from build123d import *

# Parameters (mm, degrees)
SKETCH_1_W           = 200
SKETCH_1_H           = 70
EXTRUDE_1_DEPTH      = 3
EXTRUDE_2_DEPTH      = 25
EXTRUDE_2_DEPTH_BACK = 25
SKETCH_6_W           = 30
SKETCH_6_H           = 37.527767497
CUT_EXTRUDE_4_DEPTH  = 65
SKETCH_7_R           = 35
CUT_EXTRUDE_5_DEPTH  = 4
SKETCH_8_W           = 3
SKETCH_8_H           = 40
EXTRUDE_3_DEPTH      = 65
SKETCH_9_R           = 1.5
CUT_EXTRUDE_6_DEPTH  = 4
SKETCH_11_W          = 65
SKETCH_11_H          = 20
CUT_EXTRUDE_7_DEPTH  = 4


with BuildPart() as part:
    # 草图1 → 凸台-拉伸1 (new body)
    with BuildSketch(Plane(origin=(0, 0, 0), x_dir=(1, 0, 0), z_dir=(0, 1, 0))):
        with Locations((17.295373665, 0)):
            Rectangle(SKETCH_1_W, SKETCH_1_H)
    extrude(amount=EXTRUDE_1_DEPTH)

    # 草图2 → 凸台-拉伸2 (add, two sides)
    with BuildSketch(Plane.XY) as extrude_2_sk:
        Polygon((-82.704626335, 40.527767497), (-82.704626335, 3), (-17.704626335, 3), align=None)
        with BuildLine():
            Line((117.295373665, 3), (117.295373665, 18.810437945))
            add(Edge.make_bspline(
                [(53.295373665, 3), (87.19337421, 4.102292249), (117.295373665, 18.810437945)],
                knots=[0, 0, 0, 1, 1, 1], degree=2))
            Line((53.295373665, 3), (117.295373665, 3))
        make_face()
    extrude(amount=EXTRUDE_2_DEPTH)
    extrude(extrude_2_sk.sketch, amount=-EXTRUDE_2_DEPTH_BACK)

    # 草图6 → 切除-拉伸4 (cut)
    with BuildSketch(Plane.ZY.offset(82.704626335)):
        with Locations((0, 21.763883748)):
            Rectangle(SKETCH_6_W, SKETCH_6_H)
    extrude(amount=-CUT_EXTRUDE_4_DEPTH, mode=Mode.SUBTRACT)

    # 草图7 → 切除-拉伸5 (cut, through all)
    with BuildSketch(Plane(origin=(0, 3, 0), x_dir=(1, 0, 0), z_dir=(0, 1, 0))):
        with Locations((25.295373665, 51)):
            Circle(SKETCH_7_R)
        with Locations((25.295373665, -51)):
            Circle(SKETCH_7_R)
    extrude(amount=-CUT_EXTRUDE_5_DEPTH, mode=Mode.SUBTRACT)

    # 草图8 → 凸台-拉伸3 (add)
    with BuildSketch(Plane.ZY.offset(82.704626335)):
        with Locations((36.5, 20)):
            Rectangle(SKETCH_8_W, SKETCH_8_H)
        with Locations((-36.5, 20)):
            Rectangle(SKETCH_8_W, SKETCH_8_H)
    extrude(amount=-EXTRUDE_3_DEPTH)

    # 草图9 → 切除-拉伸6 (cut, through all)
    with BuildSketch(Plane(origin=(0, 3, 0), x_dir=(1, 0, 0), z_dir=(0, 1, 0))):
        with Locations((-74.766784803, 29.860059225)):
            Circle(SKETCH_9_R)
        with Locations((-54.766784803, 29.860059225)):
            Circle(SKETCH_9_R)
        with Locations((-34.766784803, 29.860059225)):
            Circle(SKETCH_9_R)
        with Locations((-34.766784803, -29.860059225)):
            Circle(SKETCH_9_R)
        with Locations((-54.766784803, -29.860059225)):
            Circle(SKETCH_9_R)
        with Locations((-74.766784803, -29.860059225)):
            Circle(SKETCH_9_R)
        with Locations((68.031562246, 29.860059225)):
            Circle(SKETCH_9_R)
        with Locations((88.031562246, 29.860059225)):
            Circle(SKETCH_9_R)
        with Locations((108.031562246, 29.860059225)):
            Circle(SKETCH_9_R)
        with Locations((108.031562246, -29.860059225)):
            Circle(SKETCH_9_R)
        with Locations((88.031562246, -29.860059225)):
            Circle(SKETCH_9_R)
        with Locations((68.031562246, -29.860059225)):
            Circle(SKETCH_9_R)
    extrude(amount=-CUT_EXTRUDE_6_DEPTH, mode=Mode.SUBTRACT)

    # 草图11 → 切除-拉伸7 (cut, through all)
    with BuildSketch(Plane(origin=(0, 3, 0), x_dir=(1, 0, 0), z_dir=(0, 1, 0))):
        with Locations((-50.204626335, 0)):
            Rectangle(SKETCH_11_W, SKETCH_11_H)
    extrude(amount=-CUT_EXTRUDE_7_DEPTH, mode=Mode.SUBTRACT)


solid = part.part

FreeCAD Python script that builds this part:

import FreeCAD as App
import Part
import Sketcher
Q = App.Units.Quantity

doc = App.newDocument("Part")
body = doc.addObject("PartDesign::Body", "Body")

sketch1 = body.newObject("Sketcher::SketchObject", "Sketch")
sketch1.AttachmentSupport = (doc.getObject("XZ_Plane"), [""])
sketch1.MapMode = "FlatFace"
sketch1.addGeometry(Part.LineSegment(App.Vector(-83, -35, 0), App.Vector(-83, 35, 0)), False)
sketch1.addGeometry(Part.LineSegment(App.Vector(-83, 35, 0), App.Vector(117, 35, 0)), False)
sketch1.addGeometry(Part.LineSegment(App.Vector(117, 35, 0), App.Vector(117, -35, 0)), False)
sketch1.addGeometry(Part.LineSegment(App.Vector(117, -35, 0), App.Vector(-83, -35, 0)), False)
sketch1.addConstraint(Sketcher.Constraint("Coincident", 0, 2, 1, 1))
sketch1.addConstraint(Sketcher.Constraint("Coincident", 1, 2, 2, 1))
sketch1.addConstraint(Sketcher.Constraint("Coincident", 2, 2, 3, 1))
sketch1.addConstraint(Sketcher.Constraint("Coincident", 3, 2, 0, 1))
sketch1.addConstraint(Sketcher.Constraint("Vertical", 0))
sketch1.addConstraint(Sketcher.Constraint("Horizontal", 1))
sketch1.addConstraint(Sketcher.Constraint("Vertical", 2))
sketch1.addConstraint(Sketcher.Constraint("Horizontal", 3))
sketch1.addConstraint(Sketcher.Constraint("DistanceX", 1, 1, 1, 2, 200.0))
sketch1.addConstraint(Sketcher.Constraint("DistanceY", 0, 1, 0, 2, 70.0))
sketch1.addConstraint(Sketcher.Constraint("DistanceY", -1, 1, 0, 2, 35.0))
sketch1.addConstraint(Sketcher.Constraint("DistanceX", 0, 2, -1, 1, 82.704626))
pad1 = body.newObject("PartDesign::Pad", "Pad")
pad1.Profile = sketch1
pad1.Length = 3
pad1.Reversed = True

sketch2 = body.newObject("Sketcher::SketchObject", "Sketch001")
sketch2.AttachmentSupport = (doc.getObject("XY_Plane"), [""])
sketch2.MapMode = "FlatFace"
sketch2.addGeometry(Part.LineSegment(App.Vector(-82.704626, 40.527767, 0), App.Vector(-82.704626, 3, 0)), False)
sketch2.addGeometry(Part.LineSegment(App.Vector(-82.704626, 3, 0), App.Vector(-17.704626, 3, 0)), False)
sketch2.addGeometry(Part.LineSegment(App.Vector(-17.704626, 3, 0), App.Vector(-82.704626, 40.527767, 0)), False)
sketch2.addGeometry(Part.LineSegment(App.Vector(117.295374, 3, 0), App.Vector(117.295374, 18.810438, 0)), False)
sketch2.addGeometry(Part.BSplineCurve([App.Vector(53.295374, 3, 0), App.Vector(87.193374, 4.102292, 0), App.Vector(117.295374, 18.810438, 0)], [3, 3], [0, 1], False, 2, [1, 1, 1], False), False)
sketch2.addGeometry(Part.LineSegment(App.Vector(53.295374, 3, 0), App.Vector(117.295374, 3, 0)), False)
sketch2.addConstraint(Sketcher.Constraint("Block", 4))
sketch2.addConstraint(Sketcher.Constraint("Coincident", 0, 2, 1, 1))
sketch2.addConstraint(Sketcher.Constraint("Coincident", 1, 2, 2, 1))
sketch2.addConstraint(Sketcher.Constraint("Coincident", 2, 2, 0, 1))
sketch2.addConstraint(Sketcher.Constraint("Coincident", 3, 2, 4, 2))
sketch2.addConstraint(Sketcher.Constraint("Coincident", 4, 1, 5, 1))
sketch2.addConstraint(Sketcher.Constraint("Coincident", 5, 2, 3, 1))
sketch2.addConstraint(Sketcher.Constraint("Vertical", 0))
sketch2.addConstraint(Sketcher.Constraint("Horizontal", 1))
sketch2.addConstraint(Sketcher.Constraint("Vertical", 3))
sketch2.addConstraint(Sketcher.Constraint("Horizontal", 5))
sketch2.addConstraint(Sketcher.Constraint("Horizontal", 1, 2, 5, 2))
sketch2.addConstraint(Sketcher.Constraint("DistanceX", 1, 1, 1, 2, 65.0))
sketch2.addConstraint(Sketcher.Constraint("Angle", 2, Q("150 deg")))
sketch2.addConstraint(Sketcher.Constraint("DistanceX", 1, 2, 3, 2, 135.0))
pad2 = body.newObject("PartDesign::Pad", "Pad001")
pad2.Profile = sketch2
pad2.Type = "TwoLengths"
pad2.Length = 25
pad2.Length2 = 25

sketch3 = body.newObject("Sketcher::SketchObject", "Sketch002")
sketch3.AttachmentSupport = (doc.getObject("YZ_Plane"), [""])
sketch3.MapMode = "FlatFace"
sketch3.AttachmentOffset = App.Placement(App.Vector(0, 0, -82.704626), App.Rotation())
sketch3.addGeometry(Part.LineSegment(App.Vector(41, -15, 0), App.Vector(3, -15, 0)), False)
sketch3.addGeometry(Part.LineSegment(App.Vector(3, -15, 0), App.Vector(3, 15, 0)), False)
sketch3.addGeometry(Part.LineSegment(App.Vector(3, 15, 0), App.Vector(41, 15, 0)), False)
sketch3.addGeometry(Part.LineSegment(App.Vector(41, 15, 0), App.Vector(41, -15, 0)), False)
sketch3.addConstraint(Sketcher.Constraint("Coincident", 0, 2, 1, 1))
sketch3.addConstraint(Sketcher.Constraint("Coincident", 1, 2, 2, 1))
sketch3.addConstraint(Sketcher.Constraint("Coincident", 2, 2, 3, 1))
sketch3.addConstraint(Sketcher.Constraint("Coincident", 3, 2, 0, 1))
sketch3.addConstraint(Sketcher.Constraint("Horizontal", 0))
sketch3.addConstraint(Sketcher.Constraint("Vertical", 1))
sketch3.addConstraint(Sketcher.Constraint("Horizontal", 2))
sketch3.addConstraint(Sketcher.Constraint("Vertical", 3))
sketch3.addConstraint(Sketcher.Constraint("DistanceY", 1, 1, 1, 2, 30.0))
sketch3.addConstraint(Sketcher.Constraint("DistanceX", -1, 1, 0, 2, 3.0))
sketch3.addConstraint(Sketcher.Constraint("DistanceY", 0, 2, -1, 1, 15.0))
sketch3.addConstraint(Sketcher.Constraint("DistanceX", 0, 2, 0, 1, 37.527767))
pocket1 = body.newObject("PartDesign::Pocket", "Pocket")
pocket1.Profile = sketch3
pocket1.Length = 65
pocket1.Reversed = True

sketch4 = body.newObject("Sketcher::SketchObject", "Sketch003")
sketch4.AttachmentSupport = (doc.getObject("XZ_Plane"), [""])
sketch4.MapMode = "FlatFace"
sketch4.AttachmentOffset = App.Placement(App.Vector(0, 0, -3), App.Rotation())
sketch4.addGeometry(Part.Circle(App.Vector(25, -51, 0), App.Vector(0, 0, 1), 35), False)
sketch4.addGeometry(Part.Circle(App.Vector(25, 51, 0), App.Vector(0, 0, 1), 35), False)
sketch4.addConstraint(Sketcher.Constraint("Equal", 0, 1))
sketch4.addConstraint(Sketcher.Constraint("Symmetric", 0, 3, 1, 3, -1))
sketch4.addConstraint(Sketcher.Constraint("Diameter", 0, 70.0))
sketch4.addConstraint(Sketcher.Constraint("DistanceY", 0, 3, -1, 1, 51.0))
sketch4.addConstraint(Sketcher.Constraint("DistanceX", -1, 1, 0, 3, 25.295374))
pocket2 = body.newObject("PartDesign::Pocket", "Pocket001")
pocket2.Profile = sketch4
pocket2.Type = "ThroughAll"
pocket2.Reversed = True

sketch5 = body.newObject("Sketcher::SketchObject", "Sketch004")
sketch5.AttachmentSupport = (doc.getObject("YZ_Plane"), [""])
sketch5.MapMode = "FlatFace"
sketch5.AttachmentOffset = App.Placement(App.Vector(0, 0, -82.704626), App.Rotation())
sketch5.addGeometry(Part.LineSegment(App.Vector(40, 35, 0), App.Vector(0, 35, 0)), False)
sketch5.addGeometry(Part.LineSegment(App.Vector(0, 35, 0), App.Vector(0, 38, 0)), False)
sketch5.addGeometry(Part.LineSegment(App.Vector(0, 38, 0), App.Vector(40, 38, 0)), False)
sketch5.addGeometry(Part.LineSegment(App.Vector(40, 38, 0), App.Vector(40, 35, 0)), False)
sketch5.addGeometry(Part.LineSegment(App.Vector(40, -38, 0), App.Vector(0, -38, 0)), False)
sketch5.addGeometry(Part.LineSegment(App.Vector(0, -38, 0), App.Vector(0, -35, 0)), False)
sketch5.addGeometry(Part.LineSegment(App.Vector(0, -35, 0), App.Vector(40, -35, 0)), False)
sketch5.addGeometry(Part.LineSegment(App.Vector(40, -35, 0), App.Vector(40, -38, 0)), False)
sketch5.addConstraint(Sketcher.Constraint("Coincident", 0, 2, 1, 1))
sketch5.addConstraint(Sketcher.Constraint("Coincident", 1, 2, 2, 1))
sketch5.addConstraint(Sketcher.Constraint("Coincident", 2, 2, 3, 1))
sketch5.addConstraint(Sketcher.Constraint("Coincident", 3, 2, 0, 1))
sketch5.addConstraint(Sketcher.Constraint("Coincident", 4, 2, 5, 1))
sketch5.addConstraint(Sketcher.Constraint("Coincident", 5, 2, 6, 1))
sketch5.addConstraint(Sketcher.Constraint("Coincident", 6, 2, 7, 1))
sketch5.addConstraint(Sketcher.Constraint("Coincident", 7, 2, 4, 1))
sketch5.addConstraint(Sketcher.Constraint("Horizontal", 0))
sketch5.addConstraint(Sketcher.Constraint("Vertical", 1))
sketch5.addConstraint(Sketcher.Constraint("Horizontal", 2))
sketch5.addConstraint(Sketcher.Constraint("Vertical", 3))
sketch5.addConstraint(Sketcher.Constraint("Horizontal", 4))
sketch5.addConstraint(Sketcher.Constraint("Vertical", 5))
sketch5.addConstraint(Sketcher.Constraint("Horizontal", 6))
sketch5.addConstraint(Sketcher.Constraint("Vertical", 7))
sketch5.addConstraint(Sketcher.Constraint("Symmetric", 1, 2, 4, 2, -1, 1))
sketch5.addConstraint(Sketcher.Constraint("Symmetric", 0, 2, 5, 2, -1))
sketch5.addConstraint(Sketcher.Constraint("Vertical", 3, 2, 6, 2))
sketch5.addConstraint(Sketcher.Constraint("DistanceX", 0, 2, 0, 1, 40.0))
sketch5.addConstraint(Sketcher.Constraint("DistanceY", 1, 1, 1, 2, 3.0))
sketch5.addConstraint(Sketcher.Constraint("DistanceY", -1, 1, 0, 2, 35.0))
pad3 = body.newObject("PartDesign::Pad", "Pad002")
pad3.Profile = sketch5
pad3.Length = 65

sketch6 = body.newObject("Sketcher::SketchObject", "Sketch005")
sketch6.AttachmentSupport = (doc.getObject("XZ_Plane"), [""])
sketch6.MapMode = "FlatFace"
sketch6.AttachmentOffset = App.Placement(App.Vector(0, 0, -3), App.Rotation())
sketch6.addGeometry(Part.Circle(App.Vector(-74.8, -29.9, 0), App.Vector(0, 0, 1), 1.5), False)
sketch6.addGeometry(Part.Circle(App.Vector(-54.8, -29.9, 0), App.Vector(0, 0, 1), 1.5), False)
sketch6.addGeometry(Part.Circle(App.Vector(-34.8, -29.9, 0), App.Vector(0, 0, 1), 1.5), False)
sketch6.addGeometry(Part.Circle(App.Vector(-34.8, 29.9, 0), App.Vector(0, 0, 1), 1.5), False)
sketch6.addGeometry(Part.Circle(App.Vector(-54.8, 29.9, 0), App.Vector(0, 0, 1), 1.5), False)
sketch6.addGeometry(Part.Circle(App.Vector(-74.8, 29.9, 0), App.Vector(0, 0, 1), 1.5), False)
sketch6.addGeometry(Part.Circle(App.Vector(68, -29.9, 0), App.Vector(0, 0, 1), 1.5), False)
sketch6.addGeometry(Part.Circle(App.Vector(88, -29.9, 0), App.Vector(0, 0, 1), 1.5), False)
sketch6.addGeometry(Part.Circle(App.Vector(108, -29.9, 0), App.Vector(0, 0, 1), 1.5), False)
sketch6.addGeometry(Part.Circle(App.Vector(108, 29.9, 0), App.Vector(0, 0, 1), 1.5), False)
sketch6.addGeometry(Part.Circle(App.Vector(88, 29.9, 0), App.Vector(0, 0, 1), 1.5), False)
sketch6.addGeometry(Part.Circle(App.Vector(68, 29.9, 0), App.Vector(0, 0, 1), 1.5), False)
sketch6.addConstraint(Sketcher.Constraint("Equal", 0, 1))
sketch6.addConstraint(Sketcher.Constraint("Equal", 1, 2))
sketch6.addConstraint(Sketcher.Constraint("Equal", 2, 3))
sketch6.addConstraint(Sketcher.Constraint("Equal", 3, 4))
sketch6.addConstraint(Sketcher.Constraint("Equal", 4, 5))
sketch6.addConstraint(Sketcher.Constraint("Equal", 5, 6))
sketch6.addConstraint(Sketcher.Constraint("Equal", 6, 7))
sketch6.addConstraint(Sketcher.Constraint("Equal", 7, 8))
sketch6.addConstraint(Sketcher.Constraint("Equal", 8, 9))
sketch6.addConstraint(Sketcher.Constraint("Equal", 9, 10))
sketch6.addConstraint(Sketcher.Constraint("Equal", 10, 11))
sketch6.addConstraint(Sketcher.Constraint("Symmetric", 2, 3, 3, 3, -1))
sketch6.addConstraint(Sketcher.Constraint("Symmetric", 1, 3, 4, 3, -1))
sketch6.addConstraint(Sketcher.Constraint("Symmetric", 0, 3, 5, 3, -1))
sketch6.addConstraint(Sketcher.Constraint("Symmetric", 8, 3, 9, 3, -1))
sketch6.addConstraint(Sketcher.Constraint("Symmetric", 7, 3, 10, 3, -1))
sketch6.addConstraint(Sketcher.Constraint("Symmetric", 6, 3, 11, 3, -1))
sketch6.addConstraint(Sketcher.Constraint("Horizontal", 0, 3, 1, 3))
sketch6.addConstraint(Sketcher.Constraint("Horizontal", 1, 3, 2, 3))
sketch6.addConstraint(Sketcher.Constraint("Horizontal", 2, 3, 6, 3))
sketch6.addConstraint(Sketcher.Constraint("Horizontal", 6, 3, 7, 3))
sketch6.addConstraint(Sketcher.Constraint("Horizontal", 7, 3, 8, 3))
sketch6.addConstraint(Sketcher.Constraint("Diameter", 0, 3.0))
sketch6.addConstraint(Sketcher.Constraint("DistanceX", 0, 3, 1, 3, 20.0))
sketch6.addConstraint(Sketcher.Constraint("DistanceX", 1, 3, 2, 3, 20.0))
sketch6.addConstraint(Sketcher.Constraint("DistanceX", 6, 3, 7, 3, 20.0))
sketch6.addConstraint(Sketcher.Constraint("DistanceX", 7, 3, 8, 3, 20.0))
sketch6.addConstraint(Sketcher.Constraint("DistanceY", 0, 3, -1, 1, 29.860059))
sketch6.addConstraint(Sketcher.Constraint("DistanceX", 0, 3, -1, 1, 74.766785))
sketch6.addConstraint(Sketcher.Constraint("DistanceX", -1, 1, 6, 3, 68.031562))
pocket3 = body.newObject("PartDesign::Pocket", "Pocket002")
pocket3.Profile = sketch6
pocket3.Type = "ThroughAll"
pocket3.Reversed = True

sketch7 = body.newObject("Sketcher::SketchObject", "Sketch006")
sketch7.AttachmentSupport = (doc.getObject("XZ_Plane"), [""])
sketch7.MapMode = "FlatFace"
sketch7.AttachmentOffset = App.Placement(App.Vector(0, 0, -3), App.Rotation())
sketch7.addGeometry(Part.LineSegment(App.Vector(-83, -10, 0), App.Vector(-83, 10, 0)), False)
sketch7.addGeometry(Part.LineSegment(App.Vector(-83, 10, 0), App.Vector(-18, 10, 0)), False)
sketch7.addGeometry(Part.LineSegment(App.Vector(-18, 10, 0), App.Vector(-18, -10, 0)), False)
sketch7.addGeometry(Part.LineSegment(App.Vector(-18, -10, 0), App.Vector(-83, -10, 0)), False)
sketch7.addConstraint(Sketcher.Constraint("Coincident", 0, 2, 1, 1))
sketch7.addConstraint(Sketcher.Constraint("Coincident", 1, 2, 2, 1))
sketch7.addConstraint(Sketcher.Constraint("Coincident", 2, 2, 3, 1))
sketch7.addConstraint(Sketcher.Constraint("Coincident", 3, 2, 0, 1))
sketch7.addConstraint(Sketcher.Constraint("Vertical", 0))
sketch7.addConstraint(Sketcher.Constraint("Horizontal", 1))
sketch7.addConstraint(Sketcher.Constraint("Vertical", 2))
sketch7.addConstraint(Sketcher.Constraint("Horizontal", 3))
sketch7.addConstraint(Sketcher.Constraint("DistanceX", 1, 1, 1, 2, 65.0))
sketch7.addConstraint(Sketcher.Constraint("DistanceY", 0, 1, 0, 2, 20.0))
sketch7.addConstraint(Sketcher.Constraint("DistanceY", -1, 1, 0, 2, 10.0))
sketch7.addConstraint(Sketcher.Constraint("DistanceX", 0, 2, -1, 1, 82.704626))
pocket4 = body.newObject("PartDesign::Pocket", "Pocket003")
pocket4.Profile = sketch7
pocket4.Type = "ThroughAll"
pocket4.Reversed = True

doc.recompute()
